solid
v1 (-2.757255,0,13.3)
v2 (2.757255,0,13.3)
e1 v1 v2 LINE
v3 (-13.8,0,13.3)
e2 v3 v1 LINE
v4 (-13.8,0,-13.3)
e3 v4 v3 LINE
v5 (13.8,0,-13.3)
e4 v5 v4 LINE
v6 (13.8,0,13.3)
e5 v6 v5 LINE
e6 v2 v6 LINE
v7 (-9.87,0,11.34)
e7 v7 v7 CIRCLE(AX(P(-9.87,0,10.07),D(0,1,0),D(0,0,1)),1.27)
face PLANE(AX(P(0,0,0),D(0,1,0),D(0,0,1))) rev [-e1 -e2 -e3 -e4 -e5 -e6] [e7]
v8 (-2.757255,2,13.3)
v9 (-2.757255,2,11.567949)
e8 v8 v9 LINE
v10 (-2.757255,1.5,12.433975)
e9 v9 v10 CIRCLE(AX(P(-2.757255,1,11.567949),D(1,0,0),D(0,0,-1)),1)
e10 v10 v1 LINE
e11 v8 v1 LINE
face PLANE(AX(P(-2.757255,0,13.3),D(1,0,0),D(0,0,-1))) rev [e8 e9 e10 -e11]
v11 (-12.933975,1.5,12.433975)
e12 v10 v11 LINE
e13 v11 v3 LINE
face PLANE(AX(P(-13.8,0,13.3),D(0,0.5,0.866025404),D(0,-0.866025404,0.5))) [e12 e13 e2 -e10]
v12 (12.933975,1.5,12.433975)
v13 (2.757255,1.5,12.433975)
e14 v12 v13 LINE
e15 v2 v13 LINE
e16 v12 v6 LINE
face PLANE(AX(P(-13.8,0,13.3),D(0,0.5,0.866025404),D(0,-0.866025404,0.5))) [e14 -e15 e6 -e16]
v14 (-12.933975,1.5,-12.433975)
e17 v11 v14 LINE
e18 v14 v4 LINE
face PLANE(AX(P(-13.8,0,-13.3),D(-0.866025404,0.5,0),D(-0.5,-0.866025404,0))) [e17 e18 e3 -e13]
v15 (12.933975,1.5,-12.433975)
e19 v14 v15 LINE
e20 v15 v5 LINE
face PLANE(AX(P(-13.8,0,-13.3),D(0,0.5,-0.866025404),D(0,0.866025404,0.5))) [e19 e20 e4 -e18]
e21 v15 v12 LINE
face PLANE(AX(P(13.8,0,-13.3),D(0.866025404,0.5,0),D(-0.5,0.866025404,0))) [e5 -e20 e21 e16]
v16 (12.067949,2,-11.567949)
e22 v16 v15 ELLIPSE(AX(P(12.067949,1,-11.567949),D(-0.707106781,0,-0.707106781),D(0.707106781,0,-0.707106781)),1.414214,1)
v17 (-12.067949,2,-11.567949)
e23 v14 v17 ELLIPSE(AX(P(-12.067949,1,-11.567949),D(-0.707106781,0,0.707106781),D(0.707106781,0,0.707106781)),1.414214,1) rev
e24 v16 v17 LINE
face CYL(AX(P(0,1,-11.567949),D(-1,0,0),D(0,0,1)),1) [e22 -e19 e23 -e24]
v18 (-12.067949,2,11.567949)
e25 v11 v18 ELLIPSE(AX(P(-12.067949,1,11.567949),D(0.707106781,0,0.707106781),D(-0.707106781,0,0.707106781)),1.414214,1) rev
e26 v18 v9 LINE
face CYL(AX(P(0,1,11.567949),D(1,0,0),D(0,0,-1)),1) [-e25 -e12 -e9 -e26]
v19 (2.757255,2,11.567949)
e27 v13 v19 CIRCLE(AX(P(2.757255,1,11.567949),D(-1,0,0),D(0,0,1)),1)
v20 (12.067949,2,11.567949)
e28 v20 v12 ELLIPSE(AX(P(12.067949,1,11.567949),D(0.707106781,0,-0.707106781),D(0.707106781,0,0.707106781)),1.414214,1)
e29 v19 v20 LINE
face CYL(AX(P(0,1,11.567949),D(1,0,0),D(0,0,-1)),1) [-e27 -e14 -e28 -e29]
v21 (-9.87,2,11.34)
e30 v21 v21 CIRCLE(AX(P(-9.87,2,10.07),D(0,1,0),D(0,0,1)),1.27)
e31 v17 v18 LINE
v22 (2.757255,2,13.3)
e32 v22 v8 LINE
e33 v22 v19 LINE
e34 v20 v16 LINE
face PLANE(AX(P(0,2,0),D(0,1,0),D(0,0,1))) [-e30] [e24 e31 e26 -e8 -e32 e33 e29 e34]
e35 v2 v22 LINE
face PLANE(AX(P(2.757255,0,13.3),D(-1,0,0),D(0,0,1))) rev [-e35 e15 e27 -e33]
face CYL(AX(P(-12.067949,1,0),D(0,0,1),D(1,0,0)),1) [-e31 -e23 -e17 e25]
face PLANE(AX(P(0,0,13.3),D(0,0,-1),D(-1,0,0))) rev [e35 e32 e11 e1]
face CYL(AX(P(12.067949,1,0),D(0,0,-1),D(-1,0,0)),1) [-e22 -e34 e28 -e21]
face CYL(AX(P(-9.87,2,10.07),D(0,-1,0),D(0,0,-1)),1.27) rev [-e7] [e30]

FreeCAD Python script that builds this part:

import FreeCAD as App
import Part
import Sketcher
Q = App.Units.Quantity


def edges_at(feature, points):
    """Names of the edges that pass closest to the given points."""
    edges = feature.Shape.Edges
    near = lambda p: min(range(len(edges)), key=lambda i: edges[i].distToShape(Part.Vertex(*p))[0])
    return sorted({f"Edge{near(p) + 1}" for p in points})

doc = App.newDocument("Part")
params = doc.addObject("Spreadsheet::Sheet", "Params")
for row, (alias, value) in enumerate([
    ("sketch1_width", "27.6 mm"),
    ("sketch1_height", "26.6 mm"),
    ("pad1_length", "2 mm"),
    ("pad1_taper", "-30 deg"),
    ("sketch2_height", "2 mm"),
    ("pad2_length", "13.3 mm"),
    ("sketch3_diameter", "2.54 mm"),
    ("fillet_radius", "1 mm"),
], start=1):
    params.set(f"A{row}", alias)
    params.set(f"B{row}", "=" + value)
    params.setAlias(f"B{row}", alias)

body = doc.addObject("PartDesign::Body", "Body")

# Sketch on XZ plane
sketch1 = body.newObject("Sketcher::SketchObject", "Sketch")
sketch1.AttachmentSupport = (doc.getObject("XZ_Plane"), [""])
sketch1.MapMode = "FlatFace"
sketch1.addGeometry(Part.LineSegment(App.Vector(-14, -13, 0), App.Vector(-14, 13, 0)), False)
sketch1.addGeometry(Part.LineSegment(App.Vector(-14, 13, 0), App.Vector(14, 13, 0)), False)
sketch1.addGeometry(Part.LineSegment(App.Vector(14, 13, 0), App.Vector(14, -13, 0)), False)
sketch1.addGeometry(Part.LineSegment(App.Vector(14, -13, 0), App.Vector(-14, -13, 0)), False)
sketch1.addConstraint(Sketcher.Constraint("Coincident", 0, 2, 1, 1))
sketch1.addConstraint(Sketcher.Constraint("Coincident", 1, 2, 2, 1))
sketch1.addConstraint(Sketcher.Constraint("Coincident", 2, 2, 3, 1))
sketch1.addConstraint(Sketcher.Constraint("Coincident", 3, 2, 0, 1))
sketch1.addConstraint(Sketcher.Constraint("Vertical", 0))
sketch1.addConstraint(Sketcher.Constraint("Horizontal", 1))
sketch1.addConstraint(Sketcher.Constraint("Vertical", 2))
sketch1.addConstraint(Sketcher.Constraint("Horizontal", 3))
sketch1.addConstraint(Sketcher.Constraint("Symmetric", 0, 2, 2, 2, -1, 1))
sketch1.addConstraint(Sketcher.Constraint("DistanceX", 1, 1, 1, 2, Q("27.6 mm")))
sketch1.addConstraint(Sketcher.Constraint("DistanceY", 0, 1, 0, 2, Q("26.6 mm")))
sketch1.setExpression("Constraints[9]", "Params.sketch1_width")
sketch1.setExpression("Constraints[10]", "Params.sketch1_height")
pad1 = body.newObject("PartDesign::Pad", "Pad")
pad1.Profile = sketch1
pad1.setExpression("Length", "Params.pad1_length")
pad1.Reversed = True
pad1.setExpression("TaperAngle", "Params.pad1_taper")

# Sketch on XY plane
sketch2 = body.newObject("Sketcher::SketchObject", "Sketch001")
sketch2.AttachmentSupport = (doc.getObject("XY_Plane"), [""])
sketch2.MapMode = "FlatFace"
sketch2.addGeometry(Part.LineSegment(App.Vector(-2.8, 2, 0), App.Vector(-2.8, 0, 0)), False)
sketch2.addGeometry(Part.LineSegment(App.Vector(-2.8, 0, 0), App.Vector(2.8, 0, 0)), False)
sketch2.addGeometry(Part.LineSegment(App.Vector(2.8, 0, 0), App.Vector(2.8, 2, 0)), False)
sketch2.addGeometry(Part.LineSegment(App.Vector(2.8, 2, 0), App.Vector(-2.8, 2, 0)), False)
sketch2.addConstraint(Sketcher.Constraint("Coincident", 0, 2, 1, 1))
sketch2.addConstraint(Sketcher.Constraint("Coincident", 1, 2, 2, 1))
sketch2.addConstraint(Sketcher.Constraint("Coincident", 2, 2, 3, 1))
sketch2.addConstraint(Sketcher.Constraint("Coincident", 3, 2, 0, 1))
sketch2.addConstraint(Sketcher.Constraint("Vertical", 0))
sketch2.addConstraint(Sketcher.Constraint("Horizontal", 1))
sketch2.addConstraint(Sketcher.Constraint("Vertical", 2))
sketch2.addConstraint(Sketcher.Constraint("Horizontal", 3))
sketch2.addConstraint(Sketcher.Constraint("Symmetric", 0, 2, 1, 2, -1, 1))
sketch2.addConstraint(Sketcher.Constraint("DistanceY", 0, 2, 0, 1, Q("2 mm")))
sketch2.addConstraint(Sketcher.Constraint("DistanceX", 1, 1, 1, 2, Q("5.51451 mm")))
sketch2.setExpression("Constraints[9]", "Params.sketch2_height")
pad2 = body.newObject("PartDesign::Pad", "Pad001")
pad2.Profile = sketch2
pad2.setExpression("Length", "Params.pad2_length")

# Sketch on XZ plane
sketch3 = body.newObject("Sketcher::SketchObject", "Sketch002")
sketch3.AttachmentSupport = (doc.getObject("XZ_Plane"), [""])
sketch3.MapMode = "FlatFace"
sketch3.addGeometry(Part.Circle(App.Vector(-9.9, 10.1, 0), App.Vector(0, 0, 1), 1.3), False)
sketch3.addConstraint(Sketcher.Constraint("Diameter", 0, Q("2.54 mm")))
sketch3.addConstraint(Sketcher.Constraint("DistanceX", 0, 3, -1, 1, Q("9.87 mm")))
sketch3.addConstraint(Sketcher.Constraint("DistanceY", -1, 1, 0, 3, Q("10.07 mm")))
sketch3.setExpression("Constraints[0]", "Params.sketch3_diameter")
pocket1 = body.newObject("PartDesign::Pocket", "Pocket")
pocket1.Profile = sketch3
pocket1.Type = "ThroughAll"
doc.recompute()

fillet = body.newObject("PartDesign::Fillet", "Fillet")
fillet.Base = (pocket1, edges_at(pocket1, [
    (-12.645, 2, 0),
    (-7.701, 2, 12.145),
    (7.701, 2, 12.145),
    (12.645, 2, 0),
    (0, 2, -12.145),
]))
fillet.setExpression("Radius", "Params.fillet_radius")

doc.recompute()
